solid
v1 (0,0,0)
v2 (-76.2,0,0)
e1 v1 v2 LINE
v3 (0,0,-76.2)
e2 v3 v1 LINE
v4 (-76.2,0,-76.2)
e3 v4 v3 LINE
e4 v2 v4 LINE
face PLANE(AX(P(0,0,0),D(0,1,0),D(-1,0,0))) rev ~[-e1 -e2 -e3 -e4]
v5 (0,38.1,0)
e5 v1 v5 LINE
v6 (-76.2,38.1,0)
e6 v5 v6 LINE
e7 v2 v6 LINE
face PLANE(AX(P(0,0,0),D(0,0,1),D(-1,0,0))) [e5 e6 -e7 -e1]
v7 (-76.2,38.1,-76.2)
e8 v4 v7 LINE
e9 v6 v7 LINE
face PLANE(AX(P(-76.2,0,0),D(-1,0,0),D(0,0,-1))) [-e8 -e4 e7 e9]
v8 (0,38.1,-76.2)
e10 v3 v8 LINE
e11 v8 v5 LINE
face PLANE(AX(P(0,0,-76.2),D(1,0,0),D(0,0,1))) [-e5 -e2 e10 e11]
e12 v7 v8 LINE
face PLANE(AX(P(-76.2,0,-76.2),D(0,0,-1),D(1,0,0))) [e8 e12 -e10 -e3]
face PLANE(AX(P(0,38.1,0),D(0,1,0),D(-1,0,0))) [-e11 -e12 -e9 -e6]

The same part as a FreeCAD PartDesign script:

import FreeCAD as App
import Part
import Sketcher
from FreeCAD import Vector
Q = App.Units.Quantity


def add_polygon(sketch, points):
    """Adds a closed chain of lines whose ends are joined by coincident constraints."""
    first, n = sketch.GeometryCount, len(points)
    for a, b in zip(points, points[1:] + points[:1]):
        sketch.addGeometry(Part.LineSegment(App.Vector(*a, 0), App.Vector(*b, 0)), False)
    for i in range(n):
        sketch.addConstraint(Sketcher.Constraint("Coincident", first + i, 2, first + (i + 1) % n, 1))

doc = App.newDocument("Part")
body = doc.addObject("PartDesign::Body", "Body")

# Sketch on XZ plane
sketch1 = body.newObject("Sketcher::SketchObject", "Sketch")
sketch1.AttachmentSupport = (doc.getObject("XZ_Plane"), [""])
sketch1.MapMode = "FlatFace"
add_polygon(sketch1, [(-76.2, 0), (0, 0), (0, -76.2), (-76.2, -76.2)])  # lines 0-3
sketch1.addConstraint([
    Sketcher.Constraint("Horizontal", 0),
    Sketcher.Constraint("Vertical", 1),
    Sketcher.Constraint("Horizontal", 2),
    Sketcher.Constraint("Vertical", 3),
    Sketcher.Constraint("Coincident", 0, 2, -1, 1),
    Sketcher.Constraint("Equal", 2, 1),
    Sketcher.Constraint("DistanceX", 0, 1, 0, 2, Q("3 in")),
])
pad1 = body.newObject("PartDesign::Pad", "Pad")
pad1.Profile = sketch1
pad1.Length = Q("1.5 in")
pad1.Reversed = True

doc.recompute()
